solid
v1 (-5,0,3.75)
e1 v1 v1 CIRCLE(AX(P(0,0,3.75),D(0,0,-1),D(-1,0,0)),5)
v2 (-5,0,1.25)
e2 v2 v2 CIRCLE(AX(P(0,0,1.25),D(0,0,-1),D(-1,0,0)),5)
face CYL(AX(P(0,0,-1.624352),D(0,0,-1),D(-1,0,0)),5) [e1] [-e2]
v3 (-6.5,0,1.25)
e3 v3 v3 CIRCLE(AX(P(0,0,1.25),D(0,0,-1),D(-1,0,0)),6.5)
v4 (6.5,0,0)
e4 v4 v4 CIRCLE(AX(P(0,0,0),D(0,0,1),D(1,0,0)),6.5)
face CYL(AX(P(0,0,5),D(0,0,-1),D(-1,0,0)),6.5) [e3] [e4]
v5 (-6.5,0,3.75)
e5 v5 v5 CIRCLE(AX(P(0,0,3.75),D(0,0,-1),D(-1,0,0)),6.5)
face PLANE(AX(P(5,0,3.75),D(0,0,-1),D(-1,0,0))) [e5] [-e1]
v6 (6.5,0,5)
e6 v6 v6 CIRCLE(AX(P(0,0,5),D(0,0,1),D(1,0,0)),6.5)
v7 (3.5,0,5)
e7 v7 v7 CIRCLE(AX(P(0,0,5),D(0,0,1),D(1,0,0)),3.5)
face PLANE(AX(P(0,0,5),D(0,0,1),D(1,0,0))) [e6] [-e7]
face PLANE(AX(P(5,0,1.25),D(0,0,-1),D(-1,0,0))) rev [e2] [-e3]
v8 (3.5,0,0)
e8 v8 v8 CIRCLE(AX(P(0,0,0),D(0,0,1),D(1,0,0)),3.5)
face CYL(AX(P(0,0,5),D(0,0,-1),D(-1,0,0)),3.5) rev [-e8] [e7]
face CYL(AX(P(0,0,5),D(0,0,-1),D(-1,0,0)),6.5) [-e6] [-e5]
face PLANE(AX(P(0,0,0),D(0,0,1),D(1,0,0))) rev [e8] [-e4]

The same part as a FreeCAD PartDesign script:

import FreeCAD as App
import Part
import Sketcher


def add_polygon(sketch, points):
    """Adds a closed chain of lines whose ends are joined by coincident constraints."""
    first, n = sketch.GeometryCount, len(points)
    for a, b in zip(points, points[1:] + points[:1]):
        sketch.addGeometry(Part.LineSegment(App.Vector(*a, 0), App.Vector(*b, 0)), False)
    for i in range(n):
        sketch.addConstraint(Sketcher.Constraint("Coincident", first + i, 2, first + (i + 1) % n, 1))

doc = App.newDocument("Part")
body = doc.addObject("PartDesign::Body", "Body")

sketch1 = body.newObject("Sketcher::SketchObject", "Sketch")
sketch1.AttachmentSupport = (doc.getObject("XY_Plane"), [""])
sketch1.MapMode = "FlatFace"
sketch1.addGeometry([
    Part.Circle(App.Vector(0, 0, 0), App.Vector(0, 0, 1), 6.5),
    Part.Circle(App.Vector(0, 0, 0), App.Vector(0, 0, 1), 3.5),
], False)
sketch1.addConstraint([
    Sketcher.Constraint("Coincident", 0, 3, -1, 1),
    Sketcher.Constraint("Coincident", 1, 3, -1, 1),
    Sketcher.Constraint("Diameter", 0, 13.0),
    Sketcher.Constraint("Diameter", 1, 7.0),
])
pad1 = body.newObject("PartDesign::Pad", "Pad")
pad1.Profile = sketch1
pad1.Length = 5

sketch2 = body.newObject("Sketcher::SketchObject", "Sketch001")
sketch2.AttachmentSupport = (doc.getObject("XZ_Plane"), [""])
sketch2.MapMode = "FlatFace"
add_polygon(sketch2, [(5, 1.2), (5, 3.8), (6.5, 3.8), (6.5, 1.2)])
sketch2.addConstraint([
    Sketcher.Constraint("Vertical", 0),
    Sketcher.Constraint("Horizontal", 1),
    Sketcher.Constraint("Vertical", 2),
    Sketcher.Constraint("Horizontal", 3),
    Sketcher.Constraint("DistanceX", 1, 1, 1, 2, 1.5),
    Sketcher.Constraint("DistanceY", 0, 1, 0, 2, 2.5),
    Sketcher.Constraint("DistanceX", -1, 1, 0, 2, 5.0),
    Sketcher.Constraint("DistanceY", -1, 1, 0, 2, 3.75),
])
groove = body.newObject("PartDesign::Groove", "Groove")
groove.Profile = sketch2
groove.ReferenceAxis = (sketch2, ["V_Axis"])
groove.Angle = 360

doc.recompute()
